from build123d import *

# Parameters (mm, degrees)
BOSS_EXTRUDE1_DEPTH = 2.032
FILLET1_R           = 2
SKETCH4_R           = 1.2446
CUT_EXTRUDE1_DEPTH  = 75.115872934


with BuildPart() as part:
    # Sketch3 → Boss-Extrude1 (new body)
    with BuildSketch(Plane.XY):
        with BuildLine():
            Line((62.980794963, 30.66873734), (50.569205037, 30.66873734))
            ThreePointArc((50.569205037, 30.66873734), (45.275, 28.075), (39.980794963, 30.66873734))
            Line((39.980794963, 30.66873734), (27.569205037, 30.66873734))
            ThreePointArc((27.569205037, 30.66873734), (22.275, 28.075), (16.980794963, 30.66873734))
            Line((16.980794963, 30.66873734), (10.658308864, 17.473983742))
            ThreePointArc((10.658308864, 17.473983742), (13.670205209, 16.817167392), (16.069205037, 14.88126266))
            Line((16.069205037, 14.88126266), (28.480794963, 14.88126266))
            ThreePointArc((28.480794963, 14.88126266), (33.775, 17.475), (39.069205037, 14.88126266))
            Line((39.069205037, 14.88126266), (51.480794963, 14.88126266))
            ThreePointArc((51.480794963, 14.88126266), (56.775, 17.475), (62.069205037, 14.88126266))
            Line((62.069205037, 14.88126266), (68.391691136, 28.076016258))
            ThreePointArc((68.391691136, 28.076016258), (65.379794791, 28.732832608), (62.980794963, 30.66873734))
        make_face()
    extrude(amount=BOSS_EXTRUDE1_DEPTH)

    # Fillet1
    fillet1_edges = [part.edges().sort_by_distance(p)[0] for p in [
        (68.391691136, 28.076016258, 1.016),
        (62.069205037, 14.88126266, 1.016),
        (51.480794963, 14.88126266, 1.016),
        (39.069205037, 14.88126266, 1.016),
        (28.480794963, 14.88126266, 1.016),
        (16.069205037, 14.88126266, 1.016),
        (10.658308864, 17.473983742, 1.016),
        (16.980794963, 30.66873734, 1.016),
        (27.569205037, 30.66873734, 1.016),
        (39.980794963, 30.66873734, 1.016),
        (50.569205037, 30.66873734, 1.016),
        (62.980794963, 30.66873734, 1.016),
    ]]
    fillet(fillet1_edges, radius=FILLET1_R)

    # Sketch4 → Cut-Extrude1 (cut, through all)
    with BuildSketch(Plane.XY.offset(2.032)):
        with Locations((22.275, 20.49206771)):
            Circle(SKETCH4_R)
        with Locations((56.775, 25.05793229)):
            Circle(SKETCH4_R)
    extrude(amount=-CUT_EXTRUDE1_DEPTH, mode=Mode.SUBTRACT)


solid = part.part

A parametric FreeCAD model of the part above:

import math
import FreeCAD as App
import Part
import Sketcher
from FreeCAD import Vector
Q = App.Units.Quantity


def edges_at(feature, points):
    """Names of the edges that pass closest to the given points."""
    edges = feature.Shape.Edges
    near = lambda p: min(range(len(edges)), key=lambda i: edges[i].distToShape(Part.Vertex(*p))[0])
    return sorted({f"Edge{near(p) + 1}" for p in points})

doc = App.newDocument("Part")
body = doc.addObject("PartDesign::Body", "Body")

# Sketch on XY plane
sketch1 = body.newObject("Sketcher::SketchObject", "Sketch")
sketch1.AttachmentSupport = (doc.getObject("XY_Plane"), [""])
sketch1.MapMode = "FlatFace"
sketch1.addGeometry([
    Part.LineSegment(Vector(62.980795, 30.668737, 0), Vector(50.569205, 30.668737, 0)),  # 0
    Part.ArcOfCircle(Part.Circle(Vector(45.275, 34.775, 0), Vector(0, 0, 1), 6.7), math.radians(-142.202323), math.radians(-37.797677)),  # 1
    Part.LineSegment(Vector(39.980795, 30.668737, 0), Vector(27.569205, 30.668737, 0)),  # 2
    Part.ArcOfCircle(Part.Circle(Vector(22.275, 34.775, 0), Vector(0, 0, 1), 6.7), math.radians(-142.202323), math.radians(-37.797677)),  # 3
    Part.LineSegment(Vector(16.980795, 30.668737, 0), Vector(10.658309, 17.473984, 0)),  # 4
    Part.ArcOfCircle(Part.Circle(Vector(10.775, 10.775, 0), Vector(0, 0, 1), 6.7), math.radians(37.797678), math.radians(90.997947)),  # 5
    Part.LineSegment(Vector(16.069205, 14.881263, 0), Vector(28.480795, 14.881263, 0)),  # 6
    Part.ArcOfCircle(Part.Circle(Vector(33.775, 10.775, 0), Vector(0, 0, 1), 6.7), math.radians(37.797677), math.radians(142.202323)),  # 7
    Part.LineSegment(Vector(39.069205, 14.881263, 0), Vector(51.480795, 14.881263, 0)),  # 8
    Part.ArcOfCircle(Part.Circle(Vector(56.775, 10.775, 0), Vector(0, 0, 1), 6.7), math.radians(37.797677), math.radians(142.202323)),  # 9
    Part.LineSegment(Vector(62.069205, 14.881263, 0), Vector(68.391691, 28.076016, 0)),  # 10
    Part.ArcOfCircle(Part.Circle(Vector(68.275, 34.775, 0), Vector(0, 0, 1), 6.7), math.radians(-142.202322), math.radians(-89.002053)),  # 11
], False)
sketch1.addConstraint([
    Sketcher.Constraint("Coincident", 0, 2, 1, 2),
    Sketcher.Constraint("Coincident", 1, 1, 2, 1),
    Sketcher.Constraint("Coincident", 2, 2, 3, 2),
    Sketcher.Constraint("Coincident", 3, 1, 4, 1),
    Sketcher.Constraint("Coincident", 4, 2, 5, 2),
    Sketcher.Constraint("Coincident", 5, 1, 6, 1),
    Sketcher.Constraint("Coincident", 6, 2, 7, 2),
    Sketcher.Constraint("Coincident", 7, 1, 8, 1),
    Sketcher.Constraint("Coincident", 8, 2, 9, 2),
    Sketcher.Constraint("Coincident", 9, 1, 10, 1),
    Sketcher.Constraint("Coincident", 10, 2, 11, 2),
    Sketcher.Constraint("Coincident", 11, 1, 0, 1),
    Sketcher.Constraint("Horizontal", 0),
    Sketcher.Constraint("Horizontal", 2),
    Sketcher.Constraint("Horizontal", 6),
    Sketcher.Constraint("Horizontal", 8),
    Sketcher.Constraint("Equal", 1, 3),
    Sketcher.Constraint("Equal", 3, 5),
    Sketcher.Constraint("Equal", 5, 7),
    Sketcher.Constraint("Equal", 7, 9),
    Sketcher.Constraint("Equal", 9, 11),
    Sketcher.Constraint("Parallel", 4, 10),
    Sketcher.Constraint("Horizontal", 1, 3, 3, 3),
    Sketcher.Constraint("Horizontal", 5, 3, 7, 3),
    Sketcher.Constraint("Horizontal", 7, 3, 9, 3),
    Sketcher.Constraint("Horizontal", 3, 3, 11, 3),
    Sketcher.Constraint("Horizontal", 0, 2, 1, 1),
    Sketcher.Constraint("Horizontal", 2, 2, 3, 1),
    Sketcher.Constraint("Horizontal", 6, 2, 7, 1),
    Sketcher.Constraint("Horizontal", 8, 2, 9, 1),
    Sketcher.Constraint("Equal", 0, 2),
    Sketcher.Constraint("Equal", 2, 6),
    Sketcher.Constraint("Equal", 6, 8),
    Sketcher.Constraint("Equal", 4, 10),
    Sketcher.Constraint("Radius", 1, Q("6.7 mm")),
    Sketcher.Constraint("DistanceX", 3, 3, 1, 3, Q("23 mm")),
    Sketcher.Constraint("DistanceY", 5, 3, 3, 3, Q("24 mm")),
    Sketcher.Constraint("DistanceX", 5, 3, 3, 3, Q("11.5 mm")),
    Sketcher.Constraint("DistanceX", -1, 1, 1, 3, Q("45.275 mm")),
    Sketcher.Constraint("DistanceY", -1, 1, 1, 3, Q("34.775 mm")),
    Sketcher.Constraint("DistanceX", 0, 2, 0, 1, Q("12.41159 mm")),
    Sketcher.Constraint("DistanceX", -1, 1, 4, 2, Q("10.658309 mm")),
])
pad1 = body.newObject("PartDesign::Pad", "Pad")
pad1.Profile = sketch1
pad1.Length = 2.032
doc.recompute()

fillet = body.newObject("PartDesign::Fillet", "Fillet")
fillet.Base = (pad1, edges_at(pad1, [
    (68.392, 28.076, 1.016),
    (62.069, 14.881, 1.016),
    (51.481, 14.881, 1.016),
    (39.069, 14.881, 1.016),
    (28.481, 14.881, 1.016),
    (16.069, 14.881, 1.016),
    (10.658, 17.474, 1.016),
    (16.981, 30.669, 1.016),
    (27.569, 30.669, 1.016),
    (39.981, 30.669, 1.016),
    (50.569, 30.669, 1.016),
    (62.981, 30.669, 1.016),
]))
fillet.Radius = 2

# Sketch on XY plane
sketch2 = body.newObject("Sketcher::SketchObject", "Sketch001")
sketch2.AttachmentSupport = (doc.getObject("XY_Plane"), [""])
sketch2.MapMode = "FlatFace"
sketch2.AttachmentOffset = App.Placement(Vector(0, 0, 2.032), App.Rotation())
sketch2.addGeometry([
    Part.Circle(Vector(22.275, 20.492068, 0), Vector(0, 0, 1), 1.2446),
    Part.Circle(Vector(56.775, 25.057932, 0), Vector(0, 0, 1), 1.2446),
], False)
sketch2.addConstraint([
    Sketcher.Constraint("Equal", 0, 1),
    Sketcher.Constraint("Diameter", 0, Q("2.4892 mm")),
    Sketcher.Constraint("DistanceX", 0, 3, 1, 3, Q("34.5 mm")),
    Sketcher.Constraint("DistanceX", -1, 1, 0, 3, Q("22.275 mm")),
    Sketcher.Constraint("DistanceY", -1, 1, 0, 3, Q("20.492068 mm")),
    Sketcher.Constraint("DistanceY", -1, 1, 1, 3, Q("25.057932 mm")),
])
pocket1 = body.newObject("PartDesign::Pocket", "Pocket")
pocket1.Profile = sketch2
pocket1.Type = "ThroughAll"

doc.recompute()
